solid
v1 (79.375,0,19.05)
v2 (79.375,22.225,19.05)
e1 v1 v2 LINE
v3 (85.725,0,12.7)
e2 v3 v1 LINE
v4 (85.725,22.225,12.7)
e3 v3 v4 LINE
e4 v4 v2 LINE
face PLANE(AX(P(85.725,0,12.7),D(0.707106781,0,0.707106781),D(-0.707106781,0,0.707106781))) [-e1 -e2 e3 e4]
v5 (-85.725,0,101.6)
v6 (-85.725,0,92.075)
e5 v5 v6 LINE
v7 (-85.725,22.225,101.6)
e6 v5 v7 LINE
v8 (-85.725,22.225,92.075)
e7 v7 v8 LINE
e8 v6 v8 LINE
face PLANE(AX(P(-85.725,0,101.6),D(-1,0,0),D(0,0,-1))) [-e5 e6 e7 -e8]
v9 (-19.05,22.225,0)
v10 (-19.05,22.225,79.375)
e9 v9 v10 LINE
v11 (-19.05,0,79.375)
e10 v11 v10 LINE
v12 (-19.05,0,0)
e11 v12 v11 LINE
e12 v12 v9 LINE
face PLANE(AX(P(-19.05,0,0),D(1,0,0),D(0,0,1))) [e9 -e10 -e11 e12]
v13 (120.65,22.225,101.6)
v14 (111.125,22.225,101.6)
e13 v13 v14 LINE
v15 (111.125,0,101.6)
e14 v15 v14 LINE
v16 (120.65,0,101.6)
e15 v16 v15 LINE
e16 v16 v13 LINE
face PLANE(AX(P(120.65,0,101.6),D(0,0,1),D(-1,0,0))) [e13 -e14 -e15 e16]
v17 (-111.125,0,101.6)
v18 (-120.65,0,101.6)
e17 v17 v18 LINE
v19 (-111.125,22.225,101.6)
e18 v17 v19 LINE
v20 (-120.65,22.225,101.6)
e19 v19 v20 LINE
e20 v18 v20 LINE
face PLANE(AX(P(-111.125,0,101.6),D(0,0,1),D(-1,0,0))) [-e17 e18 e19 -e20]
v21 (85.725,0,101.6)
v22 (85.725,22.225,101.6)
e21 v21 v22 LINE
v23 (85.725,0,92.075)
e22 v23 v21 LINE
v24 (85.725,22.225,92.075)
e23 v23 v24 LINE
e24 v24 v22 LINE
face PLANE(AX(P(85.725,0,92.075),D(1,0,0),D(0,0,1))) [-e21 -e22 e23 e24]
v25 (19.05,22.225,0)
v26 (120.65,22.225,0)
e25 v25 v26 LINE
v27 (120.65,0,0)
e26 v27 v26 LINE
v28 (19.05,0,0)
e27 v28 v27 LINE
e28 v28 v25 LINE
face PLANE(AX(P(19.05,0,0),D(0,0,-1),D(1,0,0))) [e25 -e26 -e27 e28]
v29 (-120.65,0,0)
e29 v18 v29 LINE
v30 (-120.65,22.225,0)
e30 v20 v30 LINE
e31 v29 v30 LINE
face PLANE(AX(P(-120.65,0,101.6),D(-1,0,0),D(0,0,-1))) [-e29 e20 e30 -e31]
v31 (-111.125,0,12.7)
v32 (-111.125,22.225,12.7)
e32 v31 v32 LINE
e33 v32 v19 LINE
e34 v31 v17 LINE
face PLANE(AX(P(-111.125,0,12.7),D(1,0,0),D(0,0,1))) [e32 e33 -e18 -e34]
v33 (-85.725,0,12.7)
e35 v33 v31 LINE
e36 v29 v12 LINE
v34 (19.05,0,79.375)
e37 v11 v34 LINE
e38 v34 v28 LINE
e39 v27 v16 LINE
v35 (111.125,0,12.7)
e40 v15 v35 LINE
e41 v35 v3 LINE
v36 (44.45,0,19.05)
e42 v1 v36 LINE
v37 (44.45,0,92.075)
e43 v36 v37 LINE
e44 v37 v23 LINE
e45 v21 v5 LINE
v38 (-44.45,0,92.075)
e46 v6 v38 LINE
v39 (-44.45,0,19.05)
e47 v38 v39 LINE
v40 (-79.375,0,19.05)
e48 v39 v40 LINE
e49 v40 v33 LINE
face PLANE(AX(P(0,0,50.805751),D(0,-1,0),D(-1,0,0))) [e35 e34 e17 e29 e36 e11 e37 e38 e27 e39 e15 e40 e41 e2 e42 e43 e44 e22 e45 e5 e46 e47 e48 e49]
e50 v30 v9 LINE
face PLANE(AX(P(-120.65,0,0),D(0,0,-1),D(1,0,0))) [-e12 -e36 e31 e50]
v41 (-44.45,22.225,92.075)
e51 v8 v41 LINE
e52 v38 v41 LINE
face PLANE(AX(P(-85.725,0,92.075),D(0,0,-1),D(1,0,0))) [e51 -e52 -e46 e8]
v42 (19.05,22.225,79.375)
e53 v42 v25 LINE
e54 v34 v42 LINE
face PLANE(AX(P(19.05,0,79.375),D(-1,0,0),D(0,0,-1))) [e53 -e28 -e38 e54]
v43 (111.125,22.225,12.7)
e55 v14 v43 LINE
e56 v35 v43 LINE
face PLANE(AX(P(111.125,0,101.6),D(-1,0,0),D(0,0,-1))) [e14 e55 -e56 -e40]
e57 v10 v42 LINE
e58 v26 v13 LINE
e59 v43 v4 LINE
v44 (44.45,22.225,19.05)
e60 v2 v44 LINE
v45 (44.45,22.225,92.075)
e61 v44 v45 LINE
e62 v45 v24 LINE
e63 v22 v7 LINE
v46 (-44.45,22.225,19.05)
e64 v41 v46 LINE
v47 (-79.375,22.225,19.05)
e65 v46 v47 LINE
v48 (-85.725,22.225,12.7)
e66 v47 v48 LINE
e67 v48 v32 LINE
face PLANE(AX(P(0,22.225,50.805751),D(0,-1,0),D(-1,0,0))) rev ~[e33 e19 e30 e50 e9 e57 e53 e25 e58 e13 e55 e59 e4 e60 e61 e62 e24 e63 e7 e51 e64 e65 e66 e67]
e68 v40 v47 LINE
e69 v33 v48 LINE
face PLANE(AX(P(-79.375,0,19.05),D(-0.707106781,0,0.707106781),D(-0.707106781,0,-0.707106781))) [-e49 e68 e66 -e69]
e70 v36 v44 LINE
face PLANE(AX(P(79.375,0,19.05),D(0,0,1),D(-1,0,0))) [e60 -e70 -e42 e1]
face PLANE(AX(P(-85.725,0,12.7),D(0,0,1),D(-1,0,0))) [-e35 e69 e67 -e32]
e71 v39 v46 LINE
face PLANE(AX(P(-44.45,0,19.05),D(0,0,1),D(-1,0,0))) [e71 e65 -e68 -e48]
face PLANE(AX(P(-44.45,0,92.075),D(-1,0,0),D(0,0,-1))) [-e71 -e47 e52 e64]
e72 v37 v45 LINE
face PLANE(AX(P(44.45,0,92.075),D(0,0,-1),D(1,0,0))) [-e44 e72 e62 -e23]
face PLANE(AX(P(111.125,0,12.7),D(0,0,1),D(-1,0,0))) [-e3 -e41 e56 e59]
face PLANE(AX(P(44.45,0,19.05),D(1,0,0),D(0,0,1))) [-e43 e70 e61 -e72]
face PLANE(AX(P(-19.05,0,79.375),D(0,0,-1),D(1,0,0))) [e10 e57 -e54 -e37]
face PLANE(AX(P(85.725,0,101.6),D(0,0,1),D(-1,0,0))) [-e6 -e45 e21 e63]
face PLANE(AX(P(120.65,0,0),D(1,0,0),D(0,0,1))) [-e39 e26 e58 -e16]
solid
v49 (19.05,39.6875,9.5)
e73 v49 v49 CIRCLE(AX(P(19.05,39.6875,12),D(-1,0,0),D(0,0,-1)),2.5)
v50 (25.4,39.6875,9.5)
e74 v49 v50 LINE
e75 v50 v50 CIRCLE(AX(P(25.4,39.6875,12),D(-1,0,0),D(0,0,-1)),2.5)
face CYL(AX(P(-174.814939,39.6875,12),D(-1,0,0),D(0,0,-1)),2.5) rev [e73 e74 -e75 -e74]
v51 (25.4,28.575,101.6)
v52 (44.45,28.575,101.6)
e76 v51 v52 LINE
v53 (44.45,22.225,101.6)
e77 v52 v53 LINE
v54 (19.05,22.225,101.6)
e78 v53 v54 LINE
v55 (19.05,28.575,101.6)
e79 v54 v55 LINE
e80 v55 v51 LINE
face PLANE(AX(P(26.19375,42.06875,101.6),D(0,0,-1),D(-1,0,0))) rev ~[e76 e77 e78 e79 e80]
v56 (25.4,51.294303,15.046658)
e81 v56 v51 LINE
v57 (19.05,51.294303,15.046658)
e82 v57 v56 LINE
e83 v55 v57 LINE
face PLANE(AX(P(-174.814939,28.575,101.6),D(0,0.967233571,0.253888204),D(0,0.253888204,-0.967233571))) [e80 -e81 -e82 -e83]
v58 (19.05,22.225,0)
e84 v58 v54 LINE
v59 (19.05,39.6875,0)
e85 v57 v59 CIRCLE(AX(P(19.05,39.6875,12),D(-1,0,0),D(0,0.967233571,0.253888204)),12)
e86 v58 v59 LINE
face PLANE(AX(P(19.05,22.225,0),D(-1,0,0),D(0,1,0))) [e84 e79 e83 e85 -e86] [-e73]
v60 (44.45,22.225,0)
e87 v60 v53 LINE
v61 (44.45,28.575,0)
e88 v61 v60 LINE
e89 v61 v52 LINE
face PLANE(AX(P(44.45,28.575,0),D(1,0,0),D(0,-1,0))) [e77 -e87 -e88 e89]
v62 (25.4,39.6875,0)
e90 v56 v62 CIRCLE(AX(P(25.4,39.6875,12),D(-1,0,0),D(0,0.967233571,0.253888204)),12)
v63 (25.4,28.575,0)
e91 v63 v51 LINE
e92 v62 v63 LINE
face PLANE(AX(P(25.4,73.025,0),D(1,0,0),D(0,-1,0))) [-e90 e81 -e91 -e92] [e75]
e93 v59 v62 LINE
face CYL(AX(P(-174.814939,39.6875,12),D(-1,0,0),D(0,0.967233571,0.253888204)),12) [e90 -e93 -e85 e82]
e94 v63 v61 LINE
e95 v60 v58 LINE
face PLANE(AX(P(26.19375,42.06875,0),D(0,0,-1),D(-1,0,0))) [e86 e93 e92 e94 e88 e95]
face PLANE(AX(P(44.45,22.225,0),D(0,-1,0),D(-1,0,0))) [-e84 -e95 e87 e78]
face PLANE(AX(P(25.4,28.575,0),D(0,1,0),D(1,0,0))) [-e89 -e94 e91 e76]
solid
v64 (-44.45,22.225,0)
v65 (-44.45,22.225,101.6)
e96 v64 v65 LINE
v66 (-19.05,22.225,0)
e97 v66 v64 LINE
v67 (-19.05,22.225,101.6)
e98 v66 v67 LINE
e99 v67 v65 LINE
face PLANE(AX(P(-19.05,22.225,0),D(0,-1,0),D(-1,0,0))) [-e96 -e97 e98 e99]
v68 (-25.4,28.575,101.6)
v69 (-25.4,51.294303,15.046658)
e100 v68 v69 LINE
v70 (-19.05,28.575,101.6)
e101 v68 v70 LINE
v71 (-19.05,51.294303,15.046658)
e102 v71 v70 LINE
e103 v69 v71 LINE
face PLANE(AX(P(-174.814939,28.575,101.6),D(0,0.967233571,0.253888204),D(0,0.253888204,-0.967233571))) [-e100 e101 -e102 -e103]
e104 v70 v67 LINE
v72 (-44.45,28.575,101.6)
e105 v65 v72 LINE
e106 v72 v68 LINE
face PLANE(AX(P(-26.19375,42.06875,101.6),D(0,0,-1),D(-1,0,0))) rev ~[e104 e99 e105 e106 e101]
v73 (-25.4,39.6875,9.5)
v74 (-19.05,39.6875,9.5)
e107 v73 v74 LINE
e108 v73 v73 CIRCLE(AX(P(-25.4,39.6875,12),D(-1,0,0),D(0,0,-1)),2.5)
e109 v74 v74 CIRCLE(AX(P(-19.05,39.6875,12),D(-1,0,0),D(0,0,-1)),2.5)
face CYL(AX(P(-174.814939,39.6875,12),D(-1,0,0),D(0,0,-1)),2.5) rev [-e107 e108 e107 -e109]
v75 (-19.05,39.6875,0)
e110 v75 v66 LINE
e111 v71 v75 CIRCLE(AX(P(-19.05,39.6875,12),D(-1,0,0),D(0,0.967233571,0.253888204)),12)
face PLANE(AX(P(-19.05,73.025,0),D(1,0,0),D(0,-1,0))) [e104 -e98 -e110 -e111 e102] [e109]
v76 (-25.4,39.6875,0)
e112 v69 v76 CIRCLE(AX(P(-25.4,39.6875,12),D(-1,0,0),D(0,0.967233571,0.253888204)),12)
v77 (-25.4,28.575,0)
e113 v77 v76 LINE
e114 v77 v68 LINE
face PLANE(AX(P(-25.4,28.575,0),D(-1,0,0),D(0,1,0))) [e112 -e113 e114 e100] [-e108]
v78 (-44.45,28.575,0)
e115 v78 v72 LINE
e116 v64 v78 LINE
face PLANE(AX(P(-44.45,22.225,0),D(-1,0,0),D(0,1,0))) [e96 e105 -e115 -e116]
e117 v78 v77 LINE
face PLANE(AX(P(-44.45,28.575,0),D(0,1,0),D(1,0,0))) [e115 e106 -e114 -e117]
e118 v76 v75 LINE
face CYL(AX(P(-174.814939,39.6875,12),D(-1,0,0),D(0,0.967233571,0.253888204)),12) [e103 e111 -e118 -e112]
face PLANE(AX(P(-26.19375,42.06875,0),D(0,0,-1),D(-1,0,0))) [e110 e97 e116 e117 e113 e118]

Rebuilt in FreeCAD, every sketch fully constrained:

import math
import FreeCAD as App
import Part
import Sketcher

V = App.Vector
Q = App.Units.Quantity

doc = App.newDocument("Part")
body = doc.addObject("PartDesign::Body", "Body")

sketch1 = body.newObject("Sketcher::SketchObject", "Sketch")
sketch1.AttachmentSupport = (doc.getObject("XZ_Plane"), [""])
sketch1.MapMode = "FlatFace"
sketch1.addGeometry([
    Part.LineSegment(V(-19, 79, 0), V(-19, 0, 0)),
    Part.LineSegment(V(-19, 0, 0), V(-121, 0, 0)),
    Part.LineSegment(V(-121, 0, 0), V(-121, 102, 0)),
    Part.LineSegment(V(-121, 102, 0), V(-111, 102, 0)),
    Part.LineSegment(V(-111, 102, 0), V(-111, 13, 0)),
    Part.LineSegment(V(-111, 13, 0), V(-86, 13, 0)),
    Part.LineSegment(V(-86, 13, 0), V(-79, 19, 0)),
    Part.LineSegment(V(-79, 19, 0), V(-44, 19, 0)),
    Part.LineSegment(V(-44, 19, 0), V(-44, 92, 0)),
    Part.LineSegment(V(-44, 92, 0), V(-86, 92, 0)),
    Part.LineSegment(V(-86, 92, 0), V(-86, 102, 0)),
    Part.LineSegment(V(-86, 102, 0), V(86, 102, 0)),
    Part.LineSegment(V(86, 102, 0), V(86, 92, 0)),
    Part.LineSegment(V(86, 92, 0), V(44, 92, 0)),
    Part.LineSegment(V(44, 92, 0), V(44, 19, 0)),
    Part.LineSegment(V(44, 19, 0), V(79, 19, 0)),
    Part.LineSegment(V(79, 19, 0), V(86, 13, 0)),
    Part.LineSegment(V(86, 13, 0), V(111, 13, 0)),
    Part.LineSegment(V(111, 13, 0), V(111, 102, 0)),
    Part.LineSegment(V(111, 102, 0), V(121, 102, 0)),
    Part.LineSegment(V(121, 102, 0), V(121, 0, 0)),
    Part.LineSegment(V(121, 0, 0), V(19, 0, 0)),
    Part.LineSegment(V(19, 0, 0), V(19, 79, 0)),
    Part.LineSegment(V(19, 79, 0), V(-19, 79, 0)),
], False)
sketch1.addConstraint([
    Sketcher.Constraint("Coincident", 0, 2, 1, 1),
    Sketcher.Constraint("Coincident", 1, 2, 2, 1),
    Sketcher.Constraint("Coincident", 2, 2, 3, 1),
    Sketcher.Constraint("Coincident", 3, 2, 4, 1),
    Sketcher.Constraint("Coincident", 4, 2, 5, 1),
    Sketcher.Constraint("Coincident", 5, 2, 6, 1),
    Sketcher.Constraint("Coincident", 6, 2, 7, 1),
    Sketcher.Constraint("Coincident", 7, 2, 8, 1),
    Sketcher.Constraint("Coincident", 8, 2, 9, 1),
    Sketcher.Constraint("Coincident", 9, 2, 10, 1),
    Sketcher.Constraint("Coincident", 10, 2, 11, 1),
    Sketcher.Constraint("Coincident", 11, 2, 12, 1),
    Sketcher.Constraint("Coincident", 12, 2, 13, 1),
    Sketcher.Constraint("Coincident", 13, 2, 14, 1),
    Sketcher.Constraint("Coincident", 14, 2, 15, 1),
    Sketcher.Constraint("Coincident", 15, 2, 16, 1),
    Sketcher.Constraint("Coincident", 16, 2, 17, 1),
    Sketcher.Constraint("Coincident", 17, 2, 18, 1),
    Sketcher.Constraint("Coincident", 18, 2, 19, 1),
    Sketcher.Constraint("Coincident", 19, 2, 20, 1),
    Sketcher.Constraint("Coincident", 20, 2, 21, 1),
    Sketcher.Constraint("Coincident", 21, 2, 22, 1),
    Sketcher.Constraint("Coincident", 22, 2, 23, 1),
    Sketcher.Constraint("Coincident", 23, 2, 0, 1),
    Sketcher.Constraint("Vertical", 0),
    Sketcher.Constraint("Horizontal", 1),
    Sketcher.Constraint("Vertical", 2),
    Sketcher.Constraint("Horizontal", 3),
    Sketcher.Constraint("Vertical", 4),
    Sketcher.Constraint("Horizontal", 5),
    Sketcher.Constraint("Horizontal", 7),
    Sketcher.Constraint("Vertical", 8),
    Sketcher.Constraint("Horizontal", 9),
    Sketcher.Constraint("Vertical", 10),
    Sketcher.Constraint("Horizontal", 11),
    Sketcher.Constraint("Vertical", 12),
    Sketcher.Constraint("Horizontal", 13),
    Sketcher.Constraint("Vertical", 14),
    Sketcher.Constraint("Horizontal", 15),
    Sketcher.Constraint("Horizontal", 17),
    Sketcher.Constraint("Vertical", 18),
    Sketcher.Constraint("Horizontal", 19),
    Sketcher.Constraint("Vertical", 20),
    Sketcher.Constraint("Horizontal", 21),
    Sketcher.Constraint("Vertical", 22),
    Sketcher.Constraint("Horizontal", 23),
    Sketcher.Constraint("Symmetric", 1, 2, 20, 2, -1, 1),
    Sketcher.Constraint("Symmetric", 9, 2, 12, 2, -2),
    Sketcher.Constraint("Symmetric", 7, 2, 14, 2, -2),
    Sketcher.Constraint("Symmetric", 5, 2, 16, 2, -2),
    Sketcher.Constraint("Symmetric", 3, 2, 18, 2, -2),
    Sketcher.Constraint("Symmetric", 0, 2, 21, 2, -2),
    Sketcher.Constraint("Perpendicular", 6, 16),
    Sketcher.Constraint("Horizontal", 3, 2, 10, 2),
    Sketcher.Constraint("Vertical", 5, 2, 9, 2),
    Sketcher.Constraint("Equal", 7, 15),
    Sketcher.Constraint("Equal", 21, 2),
    Sketcher.Constraint("Equal", 19, 10),
    Sketcher.Constraint("DistanceX", 1, 2, 1, 1, Q("4 in")),
    Sketcher.Constraint("DistanceX", 5, 1, 5, 2, Q("1 in")),
    Sketcher.Constraint("DistanceX", 23, 2, 23, 1, Q("1.5 in")),
    Sketcher.Constraint("DistanceY", 4, 2, 4, 1, Q("3.5 in")),
    Sketcher.Constraint("DistanceX", 7, 2, 0, 2, Q("1 in")),
    Sketcher.Constraint("DistanceX", 11, 1, 11, 2, Q("6.75 in")),
    Sketcher.Constraint("DistanceY", 22, 2, 13, 2, Q("0.5 in")),
    Sketcher.Constraint("DistanceX", 7, 1, 7, 2, Q("1.375 in")),
])
pad1 = body.newObject("PartDesign::Pad", "Pad")
pad1.Profile = sketch1
pad1.Length = Q("0.875 in")
pad1.Reversed = True
body2 = doc.addObject("PartDesign::Body", "Body001")

sketch2 = body2.newObject("Sketcher::SketchObject", "Sketch001")
sketch2.AttachmentSupport = (doc.getObject("XY_Plane001"), [""])
sketch2.MapMode = "FlatFace"
sketch2.addGeometry([
    Part.LineSegment(V(19, 22, 0), V(19, 73, 0)),
    Part.LineSegment(V(19, 73, 0), V(25, 73, 0)),
    Part.LineSegment(V(25, 73, 0), V(25, 29, 0)),
    Part.LineSegment(V(25, 29, 0), V(44, 29, 0)),
    Part.LineSegment(V(44, 29, 0), V(44, 22, 0)),
    Part.LineSegment(V(44, 22, 0), V(19, 22, 0)),
], False)
sketch2.addConstraint([
    Sketcher.Constraint("Coincident", 0, 2, 1, 1),
    Sketcher.Constraint("Coincident", 1, 2, 2, 1),
    Sketcher.Constraint("Coincident", 2, 2, 3, 1),
    Sketcher.Constraint("Coincident", 3, 2, 4, 1),
    Sketcher.Constraint("Coincident", 4, 2, 5, 1),
    Sketcher.Constraint("Coincident", 5, 2, 0, 1),
    Sketcher.Constraint("Vertical", 0),
    Sketcher.Constraint("Horizontal", 1),
    Sketcher.Constraint("Vertical", 2),
    Sketcher.Constraint("Horizontal", 3),
    Sketcher.Constraint("Vertical", 4),
    Sketcher.Constraint("Horizontal", 5),
    Sketcher.Constraint("Equal", 1, 4),
    Sketcher.Constraint("DistanceX", 5, 2, 5, 1, Q("1 in")),
    Sketcher.Constraint("DistanceY", 0, 1, 0, 2, Q("2 in")),
    Sketcher.Constraint("DistanceX", -1, 1, 1, 2, Q("1 in")),
    Sketcher.Constraint("DistanceX", 1, 1, 1, 2, Q("0.25 in")),
    Sketcher.Constraint("DistanceY", -1, 1, 0, 2, Q("2.875 in")),
])
pad2 = body2.newObject("PartDesign::Pad", "Pad001")
pad2.Profile = sketch2
pad2.Length = Q("4 in")
body3 = doc.addObject("PartDesign::Body", "Body002")

sketch3 = body3.newObject("Sketcher::SketchObject", "Sketch002")
sketch3.AttachmentSupport = (doc.getObject("XY_Plane002"), [""])
sketch3.MapMode = "FlatFace"
sketch3.addGeometry([
    Part.LineSegment(V(-19, 22, 0), V(-44, 22, 0)),
    Part.LineSegment(V(-44, 22, 0), V(-44, 29, 0)),
    Part.LineSegment(V(-44, 29, 0), V(-25, 29, 0)),
    Part.LineSegment(V(-25, 29, 0), V(-25, 73, 0)),
    Part.LineSegment(V(-25, 73, 0), V(-19, 73, 0)),
    Part.LineSegment(V(-19, 73, 0), V(-19, 22, 0)),
], False)
sketch3.addConstraint([
    Sketcher.Constraint("Coincident", 0, 2, 1, 1),
    Sketcher.Constraint("Coincident", 1, 2, 2, 1),
    Sketcher.Constraint("Coincident", 2, 2, 3, 1),
    Sketcher.Constraint("Coincident", 3, 2, 4, 1),
    Sketcher.Constraint("Coincident", 4, 2, 5, 1),
    Sketcher.Constraint("Coincident", 5, 2, 0, 1),
    Sketcher.Constraint("Horizontal", 0),
    Sketcher.Constraint("Vertical", 1),
    Sketcher.Constraint("Horizontal", 2),
    Sketcher.Constraint("Vertical", 3),
    Sketcher.Constraint("Horizontal", 4),
    Sketcher.Constraint("Vertical", 5),
    Sketcher.Constraint("Equal", 4, 1),
    Sketcher.Constraint("DistanceX", 0, 2, 0, 1, Q("1 in")),
    Sketcher.Constraint("DistanceY", 5, 2, 5, 1, Q("2 in")),
    Sketcher.Constraint("DistanceX", 2, 2, -1, 1, Q("1 in")),
    Sketcher.Constraint("DistanceX", 2, 1, 2, 2, Q("0.75 in")),
    Sketcher.Constraint("DistanceY", -1, 1, 0, 2, Q("0.875 in")),
])
pad3 = body3.newObject("PartDesign::Pad", "Pad002")
pad3.Profile = sketch3
pad3.Length = Q("4 in")
body4 = doc.addObject("PartDesign::Body", "Body003")
body4.AllowCompound = True

sketch4 = body4.newObject("Sketcher::SketchObject", "Sketch003")
sketch4.AttachmentSupport = (doc.getObject("YZ_Plane003"), [""])
sketch4.MapMode = "FlatFace"
sketch4.addGeometry([
    Part.Circle(V(39.7, 12, 0), V(0, 0, 1), 2.5),
    Part.LineSegment(V(28.6, 101.6, 0), V(51.3, 15, 0)),
    Part.ArcOfCircle(Part.Circle(V(39.7, 12, 0), V(0, 0, 1), 12), math.radians(-90), math.radians(15)),
    Part.LineSegment(V(39.7, 0, 0), V(39.7, -13.4, 0)),
    Part.LineSegment(V(39.7, -13.4, 0), V(119.7, -13.4, 0)),
    Part.LineSegment(V(119.7, -13.4, 0), V(119.7, 183.9, 0)),
    Part.LineSegment(V(119.7, 183.9, 0), V(28.6, 101.6, 0)),
], False)
sketch4.addConstraint([
    Sketcher.Constraint("Tangent", 1, 2, 2, 2),
    Sketcher.Constraint("Coincident", 2, 1, 3, 1),
    Sketcher.Constraint("Coincident", 3, 2, 4, 1),
    Sketcher.Constraint("Coincident", 4, 2, 5, 1),
    Sketcher.Constraint("Coincident", 5, 2, 6, 1),
    Sketcher.Constraint("Coincident", 6, 2, 1, 1),
    Sketcher.Constraint("Vertical", 3),
    Sketcher.Constraint("Horizontal", 4),
    Sketcher.Constraint("Vertical", 5),
    Sketcher.Constraint("Coincident", 2, 3, 0, 3),
    Sketcher.Constraint("PointOnObject", 2, 1, -1),
    Sketcher.Constraint("Vertical", 0, 3, 2, 1),
    Sketcher.Constraint("DistanceY", -1, 1, 6, 2, Q("4 in")),
    Sketcher.Constraint("Diameter", 0, Q("5 mm")),
    Sketcher.Constraint("Radius", 2, Q("12 mm")),
    Sketcher.Constraint("DistanceX", -1, 1, 0, 3, Q("1.5625 in")),
    Sketcher.Constraint("DistanceX", -1, 1, 6, 2, Q("1.125 in")),
    Sketcher.Constraint("DistanceX", 4, 1, 4, 2, Q("80.002671 mm")),
    Sketcher.Constraint("DistanceY", 3, 2, 3, 1, Q("13.396448 mm")),
    Sketcher.Constraint("DistanceY", 1, 2, 5, 2, Q("168.8334 mm")),
])
pad4 = body4.newObject("PartDesign::Pad", "Pad003")
pad4.Profile = sketch4
pad4.Type = "TwoLengths"
pad4.Length = 174.814939
pad4.Length2 = 174.814939
doc.recompute()

body5 = doc.addObject("PartDesign::Body", "Body004")
body5.BaseFeature = body4
boolean = body2.newObject("PartDesign::Boolean", "Boolean")
boolean.Type = "Cut"
boolean.addObjects([body5])
doc.recompute()

boolean2 = body3.newObject("PartDesign::Boolean", "Boolean001")
boolean2.Type = "Cut"
boolean2.addObjects([body4])

doc.recompute()
